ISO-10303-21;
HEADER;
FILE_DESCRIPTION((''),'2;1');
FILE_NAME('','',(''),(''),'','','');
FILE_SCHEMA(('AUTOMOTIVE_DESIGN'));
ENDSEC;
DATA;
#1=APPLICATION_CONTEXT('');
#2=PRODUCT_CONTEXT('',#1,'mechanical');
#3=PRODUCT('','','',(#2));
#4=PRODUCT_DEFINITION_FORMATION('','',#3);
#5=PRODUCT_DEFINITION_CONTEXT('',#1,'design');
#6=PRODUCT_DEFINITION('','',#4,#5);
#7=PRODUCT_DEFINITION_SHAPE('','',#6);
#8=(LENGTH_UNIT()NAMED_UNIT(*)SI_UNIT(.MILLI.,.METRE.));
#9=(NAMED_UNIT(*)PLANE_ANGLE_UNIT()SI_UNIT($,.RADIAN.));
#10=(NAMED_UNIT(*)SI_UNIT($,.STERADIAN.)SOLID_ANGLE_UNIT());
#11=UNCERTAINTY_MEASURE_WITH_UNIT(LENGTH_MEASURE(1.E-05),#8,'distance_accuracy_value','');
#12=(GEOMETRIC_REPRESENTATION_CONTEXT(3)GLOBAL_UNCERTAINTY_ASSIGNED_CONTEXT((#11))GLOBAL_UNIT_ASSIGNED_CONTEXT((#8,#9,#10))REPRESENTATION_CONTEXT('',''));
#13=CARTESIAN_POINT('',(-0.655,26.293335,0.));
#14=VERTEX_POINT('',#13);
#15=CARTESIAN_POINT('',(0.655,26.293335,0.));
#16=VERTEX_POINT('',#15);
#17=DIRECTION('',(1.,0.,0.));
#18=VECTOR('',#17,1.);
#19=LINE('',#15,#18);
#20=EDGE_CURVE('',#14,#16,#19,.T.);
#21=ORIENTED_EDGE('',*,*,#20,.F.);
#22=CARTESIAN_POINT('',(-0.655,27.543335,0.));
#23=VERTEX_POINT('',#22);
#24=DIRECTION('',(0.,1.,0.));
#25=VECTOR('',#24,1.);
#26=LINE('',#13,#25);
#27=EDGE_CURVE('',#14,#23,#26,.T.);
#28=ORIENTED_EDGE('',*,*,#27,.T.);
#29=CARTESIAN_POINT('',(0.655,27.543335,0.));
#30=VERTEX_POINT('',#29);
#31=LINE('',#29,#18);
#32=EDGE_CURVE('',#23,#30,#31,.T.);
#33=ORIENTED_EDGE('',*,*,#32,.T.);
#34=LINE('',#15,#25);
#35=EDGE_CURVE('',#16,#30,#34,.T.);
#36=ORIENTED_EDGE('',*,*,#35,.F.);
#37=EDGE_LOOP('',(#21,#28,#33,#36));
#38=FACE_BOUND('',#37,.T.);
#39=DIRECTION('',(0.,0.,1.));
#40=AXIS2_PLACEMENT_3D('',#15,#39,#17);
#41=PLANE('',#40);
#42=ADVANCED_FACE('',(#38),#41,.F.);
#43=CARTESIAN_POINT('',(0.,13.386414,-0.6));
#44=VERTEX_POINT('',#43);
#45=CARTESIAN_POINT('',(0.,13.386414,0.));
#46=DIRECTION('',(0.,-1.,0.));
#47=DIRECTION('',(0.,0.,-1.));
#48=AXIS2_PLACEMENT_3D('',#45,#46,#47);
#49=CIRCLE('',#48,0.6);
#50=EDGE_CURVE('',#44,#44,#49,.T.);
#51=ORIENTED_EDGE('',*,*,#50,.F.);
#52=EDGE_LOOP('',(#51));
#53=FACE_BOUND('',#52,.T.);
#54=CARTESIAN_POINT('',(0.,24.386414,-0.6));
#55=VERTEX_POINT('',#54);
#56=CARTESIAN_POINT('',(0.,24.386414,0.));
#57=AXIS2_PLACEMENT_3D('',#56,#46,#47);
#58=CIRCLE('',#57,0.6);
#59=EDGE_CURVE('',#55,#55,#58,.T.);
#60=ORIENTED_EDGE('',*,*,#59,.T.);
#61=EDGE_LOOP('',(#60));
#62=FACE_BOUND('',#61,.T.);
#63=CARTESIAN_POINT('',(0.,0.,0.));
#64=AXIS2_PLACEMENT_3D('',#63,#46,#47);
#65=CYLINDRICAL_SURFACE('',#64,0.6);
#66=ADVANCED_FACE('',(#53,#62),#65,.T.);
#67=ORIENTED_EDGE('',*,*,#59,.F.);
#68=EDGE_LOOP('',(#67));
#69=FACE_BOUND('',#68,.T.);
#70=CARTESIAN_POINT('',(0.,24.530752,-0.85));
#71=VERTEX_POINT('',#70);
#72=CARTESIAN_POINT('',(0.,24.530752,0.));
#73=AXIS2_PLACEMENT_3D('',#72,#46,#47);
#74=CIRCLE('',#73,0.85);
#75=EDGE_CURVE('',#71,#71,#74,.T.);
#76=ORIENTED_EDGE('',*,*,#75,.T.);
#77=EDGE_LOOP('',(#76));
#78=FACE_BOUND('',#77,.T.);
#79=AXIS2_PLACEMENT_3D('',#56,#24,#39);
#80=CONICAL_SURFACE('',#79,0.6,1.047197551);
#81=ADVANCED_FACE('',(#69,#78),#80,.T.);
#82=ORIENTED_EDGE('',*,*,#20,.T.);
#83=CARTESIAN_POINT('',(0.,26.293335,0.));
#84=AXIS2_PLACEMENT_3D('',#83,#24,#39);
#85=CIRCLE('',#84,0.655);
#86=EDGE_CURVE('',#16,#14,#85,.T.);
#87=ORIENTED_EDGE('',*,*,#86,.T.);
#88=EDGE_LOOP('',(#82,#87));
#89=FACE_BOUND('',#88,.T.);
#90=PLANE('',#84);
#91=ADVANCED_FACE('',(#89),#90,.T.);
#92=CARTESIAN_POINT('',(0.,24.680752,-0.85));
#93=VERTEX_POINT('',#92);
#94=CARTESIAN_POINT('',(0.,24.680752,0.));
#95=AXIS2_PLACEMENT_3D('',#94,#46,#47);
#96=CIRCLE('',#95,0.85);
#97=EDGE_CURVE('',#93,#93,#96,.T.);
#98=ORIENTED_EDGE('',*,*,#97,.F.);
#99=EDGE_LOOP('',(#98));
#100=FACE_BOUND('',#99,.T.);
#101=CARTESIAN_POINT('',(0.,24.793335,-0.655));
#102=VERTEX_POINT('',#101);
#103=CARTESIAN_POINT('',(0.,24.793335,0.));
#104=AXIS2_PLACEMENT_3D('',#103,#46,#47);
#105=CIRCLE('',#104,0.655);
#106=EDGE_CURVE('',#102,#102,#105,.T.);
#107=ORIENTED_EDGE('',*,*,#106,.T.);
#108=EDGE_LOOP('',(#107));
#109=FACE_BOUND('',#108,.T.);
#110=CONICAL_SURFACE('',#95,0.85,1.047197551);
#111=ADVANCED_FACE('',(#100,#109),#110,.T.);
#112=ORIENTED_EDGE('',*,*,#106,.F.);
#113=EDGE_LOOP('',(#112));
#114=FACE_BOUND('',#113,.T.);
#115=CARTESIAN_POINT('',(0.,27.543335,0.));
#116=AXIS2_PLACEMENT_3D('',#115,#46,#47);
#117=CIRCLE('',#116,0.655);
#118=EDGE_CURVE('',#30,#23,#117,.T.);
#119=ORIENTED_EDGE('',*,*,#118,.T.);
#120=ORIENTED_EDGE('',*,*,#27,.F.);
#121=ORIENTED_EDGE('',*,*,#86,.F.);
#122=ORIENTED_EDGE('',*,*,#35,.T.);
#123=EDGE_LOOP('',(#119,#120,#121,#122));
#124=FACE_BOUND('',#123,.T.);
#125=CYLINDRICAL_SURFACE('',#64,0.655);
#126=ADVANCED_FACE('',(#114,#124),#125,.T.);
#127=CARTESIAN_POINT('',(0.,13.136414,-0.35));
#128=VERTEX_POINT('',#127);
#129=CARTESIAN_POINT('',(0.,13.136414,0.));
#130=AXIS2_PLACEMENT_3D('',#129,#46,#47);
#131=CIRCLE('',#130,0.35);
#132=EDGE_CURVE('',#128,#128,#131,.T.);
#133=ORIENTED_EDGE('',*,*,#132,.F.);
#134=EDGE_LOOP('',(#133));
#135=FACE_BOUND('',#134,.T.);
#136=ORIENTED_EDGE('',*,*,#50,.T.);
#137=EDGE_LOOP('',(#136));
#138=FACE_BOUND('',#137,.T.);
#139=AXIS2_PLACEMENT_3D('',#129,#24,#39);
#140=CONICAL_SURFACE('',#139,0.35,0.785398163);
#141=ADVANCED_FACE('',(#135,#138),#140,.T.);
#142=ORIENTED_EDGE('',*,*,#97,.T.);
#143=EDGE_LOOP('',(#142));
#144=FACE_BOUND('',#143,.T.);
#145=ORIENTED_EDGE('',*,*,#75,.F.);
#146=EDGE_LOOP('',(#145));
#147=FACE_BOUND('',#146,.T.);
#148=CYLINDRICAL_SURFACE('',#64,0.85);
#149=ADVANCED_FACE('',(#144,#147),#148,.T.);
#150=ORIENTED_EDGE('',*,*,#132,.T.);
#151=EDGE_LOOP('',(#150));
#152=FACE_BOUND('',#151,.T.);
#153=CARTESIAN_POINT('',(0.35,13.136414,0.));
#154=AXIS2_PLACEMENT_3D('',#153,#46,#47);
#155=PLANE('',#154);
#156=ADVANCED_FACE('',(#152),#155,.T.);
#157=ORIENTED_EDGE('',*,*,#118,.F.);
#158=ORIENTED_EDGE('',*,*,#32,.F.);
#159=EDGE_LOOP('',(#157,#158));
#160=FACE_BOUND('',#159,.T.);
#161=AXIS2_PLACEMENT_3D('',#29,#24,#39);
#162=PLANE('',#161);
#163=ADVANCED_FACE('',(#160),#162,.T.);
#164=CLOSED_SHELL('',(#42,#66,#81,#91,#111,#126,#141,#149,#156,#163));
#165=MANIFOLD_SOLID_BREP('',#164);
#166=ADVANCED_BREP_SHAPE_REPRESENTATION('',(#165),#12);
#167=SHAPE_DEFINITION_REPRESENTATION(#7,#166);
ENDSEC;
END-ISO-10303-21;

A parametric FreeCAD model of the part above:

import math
import FreeCAD as App
import Part
import Sketcher
Q = App.Units.Quantity


def add_polygon(sketch, points):
    """Adds a closed chain of lines whose ends are joined by coincident constraints."""
    first, n = sketch.GeometryCount, len(points)
    for a, b in zip(points, points[1:] + points[:1]):
        sketch.addGeometry(Part.LineSegment(App.Vector(*a, 0), App.Vector(*b, 0)), False)
    for i in range(n):
        sketch.addConstraint(Sketcher.Constraint("Coincident", first + i, 2, first + (i + 1) % n, 1))

doc = App.newDocument("Part")
body = doc.addObject("PartDesign::Body", "Body")

# Sketch on XY plane
sketch1 = doc.addObject("Sketcher::SketchObject", "Sketch")
body.addObject(sketch1)
sketch1.AttachmentSupport = (doc.XY_Plane, [""])
sketch1.MapMode = "FlatFace"
add_polygon(sketch1, [(0.6, 13.39), (0.6, 24.39), (0.85, 24.53), (0.85, 24.68), (0.66, 24.79), (0.66, 27.54), (0, 27.54), (0, 13.14), (0.35, 13.14)])  # lines 0-8
sketch1.addConstraint(Sketcher.Constraint("Vertical", 0))
sketch1.addConstraint(Sketcher.Constraint("Vertical", 2))
sketch1.addConstraint(Sketcher.Constraint("Vertical", 4))
sketch1.addConstraint(Sketcher.Constraint("Horizontal", 5))
sketch1.addConstraint(Sketcher.Constraint("Vertical", 6))
sketch1.addConstraint(Sketcher.Constraint("Horizontal", 7))
sketch1.addConstraint(Sketcher.Constraint("PointOnObject", 5, 2, -2))
sketch1.addConstraint(Sketcher.Constraint("DistanceY", 0, 1, 0, 2, 11.0))
sketch1.addConstraint(Sketcher.Constraint("Angle", 1, Q("30 deg")))
sketch1.addConstraint(Sketcher.Constraint("Angle", 3, Q("150 deg")))
sketch1.addConstraint(Sketcher.Constraint("Angle", 8, Q("45 deg")))
sketch1.addConstraint(Sketcher.Constraint("DistanceX", 7, 1, 7, 2, 0.35))
sketch1.addConstraint(Sketcher.Constraint("DistanceY", 2, 1, 2, 2, 0.15))
sketch1.addConstraint(Sketcher.Constraint("DistanceY", 4, 1, 4, 2, 2.75))
sketch1.addConstraint(Sketcher.Constraint("DistanceX", -1, 1, 0, 2, 0.6))
sketch1.addConstraint(Sketcher.Constraint("DistanceX", 7, 2, 1, 2, 0.5))
sketch1.addConstraint(Sketcher.Constraint("DistanceX", 5, 2, 5, 1, 0.655))
sketch1.addConstraint(Sketcher.Constraint("DistanceY", -1, 1, 1, 2, 24.530752))
revolution = doc.addObject("PartDesign::Revolution", "Revolution")
body.addObject(revolution)
revolution.Profile = sketch1
revolution.ReferenceAxis = (sketch1, ["V_Axis"])
revolution.Angle = 360

# Sketch on XZ plane
sketch2 = doc.addObject("Sketcher::SketchObject", "Sketch001")
body.addObject(sketch2)
sketch2.AttachmentSupport = (doc.XZ_Plane, [""])
sketch2.MapMode = "FlatFace"
sketch2.AttachmentOffset = App.Placement(App.Vector(0, 0, -26.293335), App.Rotation())
sketch2.addGeometry(Part.LineSegment(App.Vector(-0.7, 0, 0), App.Vector(0.7, 0, 0)), False)
sketch2.addGeometry(Part.ArcOfCircle(Part.Circle(App.Vector(0, 0, 0), App.Vector(0, 0, 1), 0.7), math.radians(180), math.radians(360)), False)
sketch2.addConstraint(Sketcher.Constraint("Coincident", 0, 1, 1, 1))
sketch2.addConstraint(Sketcher.Constraint("Coincident", 1, 2, 0, 2))
sketch2.addConstraint(Sketcher.Constraint("Horizontal", 0))
sketch2.addConstraint(Sketcher.Constraint("Coincident", 1, 3, -1, 1))
sketch2.addConstraint(Sketcher.Constraint("PointOnObject", 0, 1, -1))
sketch2.addConstraint(Sketcher.Constraint("Radius", 1, 0.655))
pocket1 = doc.addObject("PartDesign::Pocket", "Pocket")
body.addObject(pocket1)
pocket1.Profile = sketch2
pocket1.Length = 1.25

doc.recompute()
